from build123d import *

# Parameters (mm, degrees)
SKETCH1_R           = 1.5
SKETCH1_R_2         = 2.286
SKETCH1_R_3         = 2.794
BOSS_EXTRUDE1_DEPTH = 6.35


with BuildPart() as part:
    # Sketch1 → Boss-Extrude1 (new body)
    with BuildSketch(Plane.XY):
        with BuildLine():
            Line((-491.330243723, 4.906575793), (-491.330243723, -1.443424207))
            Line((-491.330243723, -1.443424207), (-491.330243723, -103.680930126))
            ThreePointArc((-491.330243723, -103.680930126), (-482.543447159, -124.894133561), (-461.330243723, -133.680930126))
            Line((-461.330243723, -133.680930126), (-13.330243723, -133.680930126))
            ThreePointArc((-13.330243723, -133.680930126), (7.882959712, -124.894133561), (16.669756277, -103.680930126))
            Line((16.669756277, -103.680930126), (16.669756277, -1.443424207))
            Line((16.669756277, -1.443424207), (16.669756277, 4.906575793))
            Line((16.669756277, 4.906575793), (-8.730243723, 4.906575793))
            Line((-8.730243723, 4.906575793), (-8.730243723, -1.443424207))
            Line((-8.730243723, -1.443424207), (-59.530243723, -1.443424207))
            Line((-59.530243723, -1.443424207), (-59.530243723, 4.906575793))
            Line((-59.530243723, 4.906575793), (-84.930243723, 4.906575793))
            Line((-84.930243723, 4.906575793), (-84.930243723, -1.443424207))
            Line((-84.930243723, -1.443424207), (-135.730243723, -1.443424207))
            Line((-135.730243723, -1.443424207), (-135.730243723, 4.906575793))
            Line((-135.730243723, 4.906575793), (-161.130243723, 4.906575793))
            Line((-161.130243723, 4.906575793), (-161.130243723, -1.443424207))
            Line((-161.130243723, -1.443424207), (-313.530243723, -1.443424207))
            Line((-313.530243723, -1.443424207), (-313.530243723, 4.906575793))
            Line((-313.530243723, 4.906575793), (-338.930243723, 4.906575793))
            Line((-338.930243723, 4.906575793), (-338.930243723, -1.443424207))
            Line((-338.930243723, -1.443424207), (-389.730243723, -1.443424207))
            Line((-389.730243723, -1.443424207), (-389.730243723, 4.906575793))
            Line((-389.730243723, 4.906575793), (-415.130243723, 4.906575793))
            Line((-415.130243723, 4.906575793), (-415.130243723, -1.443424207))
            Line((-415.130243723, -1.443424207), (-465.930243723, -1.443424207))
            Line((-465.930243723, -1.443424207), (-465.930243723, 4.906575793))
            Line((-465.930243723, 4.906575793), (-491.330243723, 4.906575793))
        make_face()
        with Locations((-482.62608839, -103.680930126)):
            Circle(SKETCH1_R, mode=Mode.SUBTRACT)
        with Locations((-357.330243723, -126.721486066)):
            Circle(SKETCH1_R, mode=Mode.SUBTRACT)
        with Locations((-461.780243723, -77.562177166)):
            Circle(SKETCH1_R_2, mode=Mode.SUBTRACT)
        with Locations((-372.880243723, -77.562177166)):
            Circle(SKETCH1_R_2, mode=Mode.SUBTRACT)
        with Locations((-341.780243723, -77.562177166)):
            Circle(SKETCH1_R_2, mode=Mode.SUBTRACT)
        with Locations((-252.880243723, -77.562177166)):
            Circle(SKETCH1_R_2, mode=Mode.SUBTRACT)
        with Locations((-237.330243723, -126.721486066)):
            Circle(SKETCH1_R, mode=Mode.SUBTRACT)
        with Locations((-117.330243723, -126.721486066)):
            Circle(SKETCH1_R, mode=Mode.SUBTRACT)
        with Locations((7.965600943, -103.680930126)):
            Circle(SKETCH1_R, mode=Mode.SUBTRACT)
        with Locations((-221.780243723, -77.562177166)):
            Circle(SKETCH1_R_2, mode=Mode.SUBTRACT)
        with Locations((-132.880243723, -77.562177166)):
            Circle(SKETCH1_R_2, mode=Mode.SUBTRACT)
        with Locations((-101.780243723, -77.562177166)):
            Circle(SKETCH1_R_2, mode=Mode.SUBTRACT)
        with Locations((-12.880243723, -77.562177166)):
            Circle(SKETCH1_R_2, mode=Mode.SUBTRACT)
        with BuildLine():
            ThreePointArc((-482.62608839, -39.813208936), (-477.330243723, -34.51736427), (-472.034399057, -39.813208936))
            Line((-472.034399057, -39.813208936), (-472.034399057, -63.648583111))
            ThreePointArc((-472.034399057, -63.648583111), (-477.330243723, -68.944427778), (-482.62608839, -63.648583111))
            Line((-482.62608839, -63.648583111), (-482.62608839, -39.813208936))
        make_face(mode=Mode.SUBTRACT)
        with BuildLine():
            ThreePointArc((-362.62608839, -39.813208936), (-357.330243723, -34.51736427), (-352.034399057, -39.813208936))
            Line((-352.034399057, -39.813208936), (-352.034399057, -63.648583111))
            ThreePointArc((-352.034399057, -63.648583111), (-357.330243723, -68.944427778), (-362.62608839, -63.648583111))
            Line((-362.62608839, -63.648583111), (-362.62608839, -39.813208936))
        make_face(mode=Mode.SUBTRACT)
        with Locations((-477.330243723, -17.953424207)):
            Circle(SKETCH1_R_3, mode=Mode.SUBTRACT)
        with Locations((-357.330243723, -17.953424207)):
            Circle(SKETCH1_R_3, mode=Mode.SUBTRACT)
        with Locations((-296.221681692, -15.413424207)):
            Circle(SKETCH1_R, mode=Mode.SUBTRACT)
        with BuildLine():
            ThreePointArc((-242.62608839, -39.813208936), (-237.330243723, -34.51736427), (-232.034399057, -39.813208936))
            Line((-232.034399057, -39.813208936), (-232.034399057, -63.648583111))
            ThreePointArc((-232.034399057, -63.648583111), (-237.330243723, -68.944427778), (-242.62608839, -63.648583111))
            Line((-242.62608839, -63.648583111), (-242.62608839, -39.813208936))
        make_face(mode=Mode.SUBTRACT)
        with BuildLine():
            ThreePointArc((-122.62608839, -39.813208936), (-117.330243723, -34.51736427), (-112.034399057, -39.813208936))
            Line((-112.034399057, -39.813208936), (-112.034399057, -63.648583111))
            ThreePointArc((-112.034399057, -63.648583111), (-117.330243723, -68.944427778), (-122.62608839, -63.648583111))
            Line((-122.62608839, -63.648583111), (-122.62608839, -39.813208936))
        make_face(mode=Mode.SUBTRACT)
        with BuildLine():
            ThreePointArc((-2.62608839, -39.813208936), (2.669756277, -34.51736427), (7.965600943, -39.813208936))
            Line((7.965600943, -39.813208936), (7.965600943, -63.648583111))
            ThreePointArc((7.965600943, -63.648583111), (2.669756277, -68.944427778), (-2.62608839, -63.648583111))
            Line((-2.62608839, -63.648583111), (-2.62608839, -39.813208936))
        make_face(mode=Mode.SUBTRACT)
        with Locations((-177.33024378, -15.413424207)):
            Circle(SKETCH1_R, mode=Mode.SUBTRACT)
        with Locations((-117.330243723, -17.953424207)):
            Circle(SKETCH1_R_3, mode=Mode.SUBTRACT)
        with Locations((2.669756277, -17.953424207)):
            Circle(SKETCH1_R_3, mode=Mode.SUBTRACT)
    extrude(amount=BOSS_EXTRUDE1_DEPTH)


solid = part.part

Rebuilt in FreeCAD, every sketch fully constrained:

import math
import FreeCAD as App
import Part
import Sketcher
Q = App.Units.Quantity

doc = App.newDocument("Part")
body = doc.addObject("PartDesign::Body", "Body")

sketch1 = body.newObject("Sketcher::SketchObject", "Sketch")
sketch1.AttachmentSupport = (doc.getObject("XY_Plane"), [""])
sketch1.MapMode = "FlatFace"
sketch1.addGeometry([
    Part.LineSegment(App.Vector(-491.330244, 4.906576, 0), App.Vector(-491.330244, -103.68093, 0)),
    Part.ArcOfCircle(Part.Circle(App.Vector(-461.330244, -103.68093, 0), App.Vector(0, 0, 1), 30), math.radians(180), math.radians(270)),
    Part.LineSegment(App.Vector(-461.330244, -133.68093, 0), App.Vector(-13.330244, -133.68093, 0)),
    Part.ArcOfCircle(Part.Circle(App.Vector(-13.330244, -103.68093, 0), App.Vector(0, 0, 1), 30), math.radians(-90), math.radians(0)),
    Part.LineSegment(App.Vector(16.669756, -103.68093, 0), App.Vector(16.669756, 4.906576, 0)),
    Part.LineSegment(App.Vector(16.669756, 4.906576, 0), App.Vector(-8.730244, 4.906576, 0)),
    Part.LineSegment(App.Vector(-8.730244, 4.906576, 0), App.Vector(-8.730244, -1.443424, 0)),
    Part.LineSegment(App.Vector(-8.730244, -1.443424, 0), App.Vector(-59.530244, -1.443424, 0)),
    Part.LineSegment(App.Vector(-59.530244, -1.443424, 0), App.Vector(-59.530244, 4.906576, 0)),
    Part.LineSegment(App.Vector(-59.530244, 4.906576, 0), App.Vector(-84.930244, 4.906576, 0)),
    Part.LineSegment(App.Vector(-84.930244, 4.906576, 0), App.Vector(-84.930244, -1.443424, 0)),
    Part.LineSegment(App.Vector(-84.930244, -1.443424, 0), App.Vector(-135.730244, -1.443424, 0)),
    Part.LineSegment(App.Vector(-135.730244, -1.443424, 0), App.Vector(-135.730244, 4.906576, 0)),
    Part.LineSegment(App.Vector(-135.730244, 4.906576, 0), App.Vector(-161.130244, 4.906576, 0)),
    Part.LineSegment(App.Vector(-161.130244, 4.906576, 0), App.Vector(-161.130244, -1.443424, 0)),
    Part.LineSegment(App.Vector(-161.130244, -1.443424, 0), App.Vector(-313.530244, -1.443424, 0)),
    Part.LineSegment(App.Vector(-313.530244, -1.443424, 0), App.Vector(-313.530244, 4.906576, 0)),
    Part.LineSegment(App.Vector(-313.530244, 4.906576, 0), App.Vector(-338.930244, 4.906576, 0)),
    Part.LineSegment(App.Vector(-338.930244, 4.906576, 0), App.Vector(-338.930244, -1.443424, 0)),
    Part.LineSegment(App.Vector(-338.930244, -1.443424, 0), App.Vector(-389.730244, -1.443424, 0)),
    Part.LineSegment(App.Vector(-389.730244, -1.443424, 0), App.Vector(-389.730244, 4.906576, 0)),
    Part.LineSegment(App.Vector(-389.730244, 4.906576, 0), App.Vector(-415.130244, 4.906576, 0)),
    Part.LineSegment(App.Vector(-415.130244, 4.906576, 0), App.Vector(-415.130244, -1.443424, 0)),
    Part.LineSegment(App.Vector(-415.130244, -1.443424, 0), App.Vector(-465.930244, -1.443424, 0)),
    Part.LineSegment(App.Vector(-465.930244, -1.443424, 0), App.Vector(-465.930244, 4.906576, 0)),
    Part.LineSegment(App.Vector(-465.930244, 4.906576, 0), App.Vector(-491.330244, 4.906576, 0)),
    Part.Circle(App.Vector(-482.626088, -103.68093, 0), App.Vector(0, 0, 1), 1.5),
    Part.Circle(App.Vector(-357.330244, -126.721486, 0), App.Vector(0, 0, 1), 1.5),
    Part.Circle(App.Vector(-461.780244, -77.562177, 0), App.Vector(0, 0, 1), 2.286),
    Part.Circle(App.Vector(-372.880244, -77.562177, 0), App.Vector(0, 0, 1), 2.286),
    Part.Circle(App.Vector(-341.780244, -77.562177, 0), App.Vector(0, 0, 1), 2.286),
    Part.Circle(App.Vector(-252.880244, -77.562177, 0), App.Vector(0, 0, 1), 2.286),
    Part.Circle(App.Vector(-237.330244, -126.721486, 0), App.Vector(0, 0, 1), 1.5),
    Part.Circle(App.Vector(-117.330244, -126.721486, 0), App.Vector(0, 0, 1), 1.5),
    Part.Circle(App.Vector(7.965601, -103.68093, 0), App.Vector(0, 0, 1), 1.5),
    Part.Circle(App.Vector(-221.780244, -77.562177, 0), App.Vector(0, 0, 1), 2.286),
    Part.Circle(App.Vector(-132.880244, -77.562177, 0), App.Vector(0, 0, 1), 2.286),
    Part.Circle(App.Vector(-101.780244, -77.562177, 0), App.Vector(0, 0, 1), 2.286),
    Part.Circle(App.Vector(-12.880244, -77.562177, 0), App.Vector(0, 0, 1), 2.286),
    Part.LineSegment(App.Vector(-482.626088, -63.648583, 0), App.Vector(-482.626088, -39.813209, 0)),
    Part.ArcOfCircle(Part.Circle(App.Vector(-477.330244, -39.813209, 0), App.Vector(0, 0, 1), 5.295845), math.radians(0), math.radians(180)),
    Part.LineSegment(App.Vector(-472.034399, -39.813209, 0), App.Vector(-472.034399, -63.648583, 0)),
    Part.ArcOfCircle(Part.Circle(App.Vector(-477.330244, -63.648583, 0), App.Vector(0, 0, 1), 5.295845), math.radians(180), math.radians(360)),
    Part.LineSegment(App.Vector(-362.626088, -63.648583, 0), App.Vector(-362.626088, -39.813209, 0)),
    Part.ArcOfCircle(Part.Circle(App.Vector(-357.330244, -39.813209, 0), App.Vector(0, 0, 1), 5.295845), math.radians(0), math.radians(180)),
    Part.LineSegment(App.Vector(-352.034399, -39.813209, 0), App.Vector(-352.034399, -63.648583, 0)),
    Part.ArcOfCircle(Part.Circle(App.Vector(-357.330244, -63.648583, 0), App.Vector(0, 0, 1), 5.295845), math.radians(180), math.radians(360)),
    Part.Circle(App.Vector(-477.330244, -17.953424, 0), App.Vector(0, 0, 1), 2.794),
    Part.Circle(App.Vector(-357.330244, -17.953424, 0), App.Vector(0, 0, 1), 2.794),
    Part.Circle(App.Vector(-296.221682, -15.413424, 0), App.Vector(0, 0, 1), 1.5),
    Part.LineSegment(App.Vector(-242.626088, -63.648583, 0), App.Vector(-242.626088, -39.813209, 0)),
    Part.ArcOfCircle(Part.Circle(App.Vector(-237.330244, -39.813209, 0), App.Vector(0, 0, 1), 5.295845), math.radians(0), math.radians(180)),
    Part.LineSegment(App.Vector(-232.034399, -39.813209, 0), App.Vector(-232.034399, -63.648583, 0)),
    Part.ArcOfCircle(Part.Circle(App.Vector(-237.330244, -63.648583, 0), App.Vector(0, 0, 1), 5.295845), math.radians(180), math.radians(360)),
    Part.LineSegment(App.Vector(-122.626088, -63.648583, 0), App.Vector(-122.626088, -39.813209, 0)),
    Part.ArcOfCircle(Part.Circle(App.Vector(-117.330244, -39.813209, 0), App.Vector(0, 0, 1), 5.295845), math.radians(0), math.radians(180)),
    Part.LineSegment(App.Vector(-112.034399, -39.813209, 0), App.Vector(-112.034399, -63.648583, 0)),
    Part.ArcOfCircle(Part.Circle(App.Vector(-117.330244, -63.648583, 0), App.Vector(0, 0, 1), 5.295845), math.radians(180), math.radians(360)),
    Part.LineSegment(App.Vector(-2.626088, -63.648583, 0), App.Vector(-2.626088, -39.813209, 0)),
    Part.ArcOfCircle(Part.Circle(App.Vector(2.669756, -39.813209, 0), App.Vector(0, 0, 1), 5.295845), math.radians(0), math.radians(180)),
    Part.LineSegment(App.Vector(7.965601, -39.813209, 0), App.Vector(7.965601, -63.648583, 0)),
    Part.ArcOfCircle(Part.Circle(App.Vector(2.669756, -63.648583, 0), App.Vector(0, 0, 1), 5.295845), math.radians(180), math.radians(360)),
    Part.Circle(App.Vector(-177.330244, -15.413424, 0), App.Vector(0, 0, 1), 1.5),
    Part.Circle(App.Vector(-117.330244, -17.953424, 0), App.Vector(0, 0, 1), 2.794),
    Part.Circle(App.Vector(2.669756, -17.953424, 0), App.Vector(0, 0, 1), 2.794),
], False)
sketch1.addConstraint([
    Sketcher.Constraint("Tangent", 0, 2, 1, 1),
    Sketcher.Constraint("Tangent", 1, 2, 2, 1),
    Sketcher.Constraint("Tangent", 2, 2, 3, 1),
    Sketcher.Constraint("Tangent", 3, 2, 4, 1),
    Sketcher.Constraint("Coincident", 4, 2, 5, 1),
    Sketcher.Constraint("Coincident", 5, 2, 6, 1),
    Sketcher.Constraint("Coincident", 6, 2, 7, 1),
    Sketcher.Constraint("Coincident", 7, 2, 8, 1),
    Sketcher.Constraint("Coincident", 8, 2, 9, 1),
    Sketcher.Constraint("Coincident", 9, 2, 10, 1),
    Sketcher.Constraint("Coincident", 10, 2, 11, 1),
    Sketcher.Constraint("Coincident", 11, 2, 12, 1),
    Sketcher.Constraint("Coincident", 12, 2, 13, 1),
    Sketcher.Constraint("Coincident", 13, 2, 14, 1),
    Sketcher.Constraint("Coincident", 14, 2, 15, 1),
    Sketcher.Constraint("Coincident", 15, 2, 16, 1),
    Sketcher.Constraint("Coincident", 16, 2, 17, 1),
    Sketcher.Constraint("Coincident", 17, 2, 18, 1),
    Sketcher.Constraint("Coincident", 18, 2, 19, 1),
    Sketcher.Constraint("Coincident", 19, 2, 20, 1),
    Sketcher.Constraint("Coincident", 20, 2, 21, 1),
    Sketcher.Constraint("Coincident", 21, 2, 22, 1),
    Sketcher.Constraint("Coincident", 22, 2, 23, 1),
    Sketcher.Constraint("Coincident", 23, 2, 24, 1),
    Sketcher.Constraint("Coincident", 24, 2, 25, 1),
    Sketcher.Constraint("Coincident", 25, 2, 0, 1),
    Sketcher.Constraint("Tangent", 39, 2, 40, 2),
    Sketcher.Constraint("Tangent", 40, 1, 41, 1),
    Sketcher.Constraint("Tangent", 41, 2, 42, 2),
    Sketcher.Constraint("Tangent", 42, 1, 39, 1),
    Sketcher.Constraint("Tangent", 43, 2, 44, 2),
    Sketcher.Constraint("Tangent", 44, 1, 45, 1),
    Sketcher.Constraint("Tangent", 45, 2, 46, 2),
    Sketcher.Constraint("Tangent", 46, 1, 43, 1),
    Sketcher.Constraint("Tangent", 50, 2, 51, 2),
    Sketcher.Constraint("Tangent", 51, 1, 52, 1),
    Sketcher.Constraint("Tangent", 52, 2, 53, 2),
    Sketcher.Constraint("Tangent", 53, 1, 50, 1),
    Sketcher.Constraint("Tangent", 54, 2, 55, 2),
    Sketcher.Constraint("Tangent", 55, 1, 56, 1),
    Sketcher.Constraint("Tangent", 56, 2, 57, 2),
    Sketcher.Constraint("Tangent", 57, 1, 54, 1),
    Sketcher.Constraint("Tangent", 58, 2, 59, 2),
    Sketcher.Constraint("Tangent", 59, 1, 60, 1),
    Sketcher.Constraint("Tangent", 60, 2, 61, 2),
    Sketcher.Constraint("Tangent", 61, 1, 58, 1),
    Sketcher.Constraint("Vertical", 0),
    Sketcher.Constraint("Horizontal", 2),
    Sketcher.Constraint("Vertical", 4),
    Sketcher.Constraint("Horizontal", 5),
    Sketcher.Constraint("Vertical", 6),
    Sketcher.Constraint("Horizontal", 7),
    Sketcher.Constraint("Vertical", 8),
    Sketcher.Constraint("Horizontal", 9),
    Sketcher.Constraint("Vertical", 10),
    Sketcher.Constraint("Horizontal", 11),
    Sketcher.Constraint("Vertical", 12),
    Sketcher.Constraint("Horizontal", 13),
    Sketcher.Constraint("Vertical", 14),
    Sketcher.Constraint("Horizontal", 15),
    Sketcher.Constraint("Vertical", 16),
    Sketcher.Constraint("Horizontal", 17),
    Sketcher.Constraint("Vertical", 18),
    Sketcher.Constraint("Horizontal", 19),
    Sketcher.Constraint("Vertical", 20),
    Sketcher.Constraint("Horizontal", 21),
    Sketcher.Constraint("Vertical", 22),
    Sketcher.Constraint("Horizontal", 23),
    Sketcher.Constraint("Vertical", 24),
    Sketcher.Constraint("Horizontal", 25),
    Sketcher.Constraint("Vertical", 39),
    Sketcher.Constraint("Vertical", 41),
    Sketcher.Constraint("Vertical", 43),
    Sketcher.Constraint("Vertical", 45),
    Sketcher.Constraint("Vertical", 50),
    Sketcher.Constraint("Vertical", 52),
    Sketcher.Constraint("Vertical", 54),
    Sketcher.Constraint("Vertical", 56),
    Sketcher.Constraint("Vertical", 58),
    Sketcher.Constraint("Vertical", 60),
    Sketcher.Constraint("Equal", 1, 3),
    Sketcher.Constraint("Equal", 26, 27),
    Sketcher.Constraint("Equal", 28, 29),
    Sketcher.Constraint("Equal", 29, 30),
    Sketcher.Constraint("Equal", 30, 31),
    Sketcher.Constraint("Equal", 27, 32),
    Sketcher.Constraint("Equal", 32, 33),
    Sketcher.Constraint("Equal", 33, 34),
    Sketcher.Constraint("Equal", 31, 35),
    Sketcher.Constraint("Equal", 35, 36),
    Sketcher.Constraint("Equal", 36, 37),
    Sketcher.Constraint("Equal", 37, 38),
    Sketcher.Constraint("Equal", 42, 44),
    Sketcher.Constraint("Equal", 47, 48),
    Sketcher.Constraint("Equal", 34, 49),
    Sketcher.Constraint("Equal", 46, 51),
    Sketcher.Constraint("Equal", 53, 55),
    Sketcher.Constraint("Equal", 57, 59),
    Sketcher.Constraint("Equal", 49, 62),
    Sketcher.Constraint("Equal", 48, 63),
    Sketcher.Constraint("Equal", 63, 64),
    Sketcher.Constraint("Horizontal", 3, 3, 26, 3),
    Sketcher.Constraint("Horizontal", 28, 3, 29, 3),
    Sketcher.Constraint("Horizontal", 29, 3, 30, 3),
    Sketcher.Constraint("Horizontal", 30, 3, 31, 3),
    Sketcher.Constraint("Horizontal", 27, 3, 32, 3),
    Sketcher.Constraint("Horizontal", 32, 3, 33, 3),
    Sketcher.Constraint("Horizontal", 26, 3, 34, 3),
    Sketcher.Constraint("Horizontal", 31, 3, 35, 3),
    Sketcher.Constraint("Horizontal", 35, 3, 36, 3),
    Sketcher.Constraint("Horizontal", 36, 3, 37, 3),
    Sketcher.Constraint("Horizontal", 37, 3, 38, 3),
    Sketcher.Constraint("Horizontal", 40, 3, 44, 3),
    Sketcher.Constraint("Horizontal", 42, 3, 46, 3),
    Sketcher.Constraint("Horizontal", 47, 3, 48, 3),
    Sketcher.Constraint("Horizontal", 44, 3, 51, 3),
    Sketcher.Constraint("Horizontal", 46, 3, 53, 3),
    Sketcher.Constraint("Horizontal", 51, 3, 55, 3),
    Sketcher.Constraint("Horizontal", 53, 3, 57, 3),
    Sketcher.Constraint("Horizontal", 55, 3, 59, 3),
    Sketcher.Constraint("Horizontal", 57, 3, 61, 3),
    Sketcher.Constraint("Horizontal", 49, 3, 62, 3),
    Sketcher.Constraint("Horizontal", 48, 3, 63, 3),
    Sketcher.Constraint("Horizontal", 63, 3, 64, 3),
    Sketcher.Constraint("Horizontal", 5, 2, 8, 2),
    Sketcher.Constraint("Horizontal", 7, 2, 10, 2),
    Sketcher.Constraint("Horizontal", 9, 2, 12, 2),
    Sketcher.Constraint("Horizontal", 11, 2, 14, 2),
    Sketcher.Constraint("Horizontal", 13, 2, 16, 2),
    Sketcher.Constraint("Horizontal", 15, 2, 18, 2),
    Sketcher.Constraint("Horizontal", 17, 2, 20, 2),
    Sketcher.Constraint("Horizontal", 19, 2, 22, 2),
    Sketcher.Constraint("Horizontal", 21, 2, 24, 2),
    Sketcher.Constraint("Vertical", 27, 3, 44, 3),
    Sketcher.Constraint("Vertical", 42, 3, 47, 3),
    Sketcher.Constraint("Vertical", 46, 3, 48, 3),
    Sketcher.Constraint("Vertical", 32, 3, 51, 3),
    Sketcher.Constraint("Vertical", 33, 3, 55, 3),
    Sketcher.Constraint("Vertical", 57, 3, 63, 3),
    Sketcher.Constraint("Vertical", 61, 3, 64, 3),
    Sketcher.Constraint("Vertical", 26, 3, 39, 2),
    Sketcher.Constraint("Vertical", 34, 3, 59, 1),
    Sketcher.Constraint("Equal", 5, 9),
    Sketcher.Constraint("Equal", 7, 11),
    Sketcher.Constraint("Equal", 9, 13),
    Sketcher.Constraint("Equal", 13, 17),
    Sketcher.Constraint("Equal", 11, 19),
    Sketcher.Constraint("Equal", 17, 21),
    Sketcher.Constraint("Equal", 19, 23),
    Sketcher.Constraint("Equal", 21, 25),
    Sketcher.Constraint("Diameter", 28, Q("0.18 in")),
    Sketcher.Constraint("Diameter", 47, Q("0.22 in")),
    Sketcher.Constraint("DistanceX", 5, 2, 5, 1, Q("1 in")),
    Sketcher.Constraint("DistanceX", 7, 2, 7, 1, Q("2 in")),
    Sketcher.Constraint("DistanceX", 15, 2, 15, 1, Q("6 in")),
    Sketcher.Constraint("DistanceY", 6, 2, 6, 1, Q("0.25 in")),
    Sketcher.Constraint("Diameter", 26, 3.0),
    Sketcher.Constraint("Radius", 1, 30.0),
    Sketcher.Constraint("Radius", 40, 5.295845),
    Sketcher.Constraint("DistanceX", -1, 1, 34, 3, 7.965601),
    Sketcher.Constraint("DistanceX", 40, 1, -1, 1, 472.034399),
    Sketcher.Constraint("DistanceX", 44, 1, -1, 1, 352.034399),
    Sketcher.Constraint("DistanceX", 51, 1, -1, 1, 232.034399),
    Sketcher.Constraint("DistanceX", 55, 1, -1, 1, 112.034399),
    Sketcher.Constraint("DistanceY", 0, 2, 0, 1, 108.587506),
    Sketcher.Constraint("DistanceY", 39, 1, 39, 2, 23.835374),
    Sketcher.Constraint("DistanceY", 1, 3, -1, 1, 103.68093),
    Sketcher.Constraint("DistanceY", 40, 3, -1, 1, 39.813209),
    Sketcher.Constraint("DistanceX", 49, 3, -1, 1, 296.221682),
    Sketcher.Constraint("DistanceX", 1, 3, -1, 1, 461.330244),
    Sketcher.Constraint("DistanceY", 27, 3, -1, 1, 126.721486),
    Sketcher.Constraint("DistanceX", 28, 3, -1, 1, 461.780244),
    Sketcher.Constraint("DistanceY", 28, 3, -1, 1, 77.562177),
    Sketcher.Constraint("DistanceX", 29, 3, -1, 1, 372.880244),
    Sketcher.Constraint("DistanceX", 30, 3, -1, 1, 341.780244),
    Sketcher.Constraint("DistanceX", 31, 3, -1, 1, 252.880244),
    Sketcher.Constraint("DistanceX", 35, 3, -1, 1, 221.780244),
    Sketcher.Constraint("DistanceX", 36, 3, -1, 1, 132.880244),
    Sketcher.Constraint("DistanceX", 37, 3, -1, 1, 101.780244),
    Sketcher.Constraint("DistanceX", 38, 3, -1, 1, 12.880244),
    Sketcher.Constraint("DistanceY", 47, 3, -1, 1, 17.953424),
    Sketcher.Constraint("DistanceY", 49, 3, -1, 1, 15.413424),
    Sketcher.Constraint("DistanceX", 62, 3, -1, 1, 177.330244),
])
pad1 = body.newObject("PartDesign::Pad", "Pad")
pad1.Profile = sketch1
pad1.Length = Q("0.25 in")

doc.recompute()
